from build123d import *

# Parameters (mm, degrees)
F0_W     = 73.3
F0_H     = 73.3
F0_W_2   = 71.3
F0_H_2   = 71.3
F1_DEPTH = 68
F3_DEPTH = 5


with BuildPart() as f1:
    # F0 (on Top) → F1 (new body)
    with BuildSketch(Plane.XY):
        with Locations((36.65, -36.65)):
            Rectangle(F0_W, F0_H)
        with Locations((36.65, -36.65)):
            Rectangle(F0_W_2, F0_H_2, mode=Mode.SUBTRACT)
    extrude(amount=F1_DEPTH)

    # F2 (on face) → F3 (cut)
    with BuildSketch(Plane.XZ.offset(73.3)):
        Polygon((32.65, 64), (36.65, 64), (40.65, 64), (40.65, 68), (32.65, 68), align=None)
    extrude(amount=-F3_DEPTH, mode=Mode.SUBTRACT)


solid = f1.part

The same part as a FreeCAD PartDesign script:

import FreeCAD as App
import Part
import Sketcher
from FreeCAD import Vector
Q = App.Units.Quantity

doc = App.newDocument("Part")
body = doc.addObject("PartDesign::Body", "Body")

sketch1 = body.newObject("Sketcher::SketchObject", "Sketch")
sketch1.AttachmentSupport = (doc.getObject("XY_Plane"), [""])
sketch1.MapMode = "FlatFace"
sketch1.addGeometry([
    Part.LineSegment(Vector(0, 0, 0), Vector(0, -73, 0)),
    Part.LineSegment(Vector(0, -73, 0), Vector(73, -73, 0)),
    Part.LineSegment(Vector(73, -73, 0), Vector(73, 0, 0)),
    Part.LineSegment(Vector(73, 0, 0), Vector(0, 0, 0)),
    Part.LineSegment(Vector(72, -72, 0), Vector(1, -72, 0)),
    Part.LineSegment(Vector(1, -72, 0), Vector(1, -1, 0)),
    Part.LineSegment(Vector(1, -1, 0), Vector(72, -1, 0)),
    Part.LineSegment(Vector(72, -1, 0), Vector(72, -72, 0)),
], False)
sketch1.addConstraint([
    Sketcher.Constraint("Coincident", 0, 2, 1, 1),
    Sketcher.Constraint("Coincident", 1, 2, 2, 1),
    Sketcher.Constraint("Coincident", 2, 2, 3, 1),
    Sketcher.Constraint("Coincident", 3, 2, 0, 1),
    Sketcher.Constraint("Coincident", 4, 2, 5, 1),
    Sketcher.Constraint("Coincident", 5, 2, 6, 1),
    Sketcher.Constraint("Coincident", 6, 2, 7, 1),
    Sketcher.Constraint("Coincident", 7, 2, 4, 1),
    Sketcher.Constraint("Vertical", 0),
    Sketcher.Constraint("Horizontal", 1),
    Sketcher.Constraint("Vertical", 2),
    Sketcher.Constraint("Horizontal", 3),
    Sketcher.Constraint("Horizontal", 4),
    Sketcher.Constraint("Vertical", 5),
    Sketcher.Constraint("Horizontal", 6),
    Sketcher.Constraint("Vertical", 7),
    Sketcher.Constraint("Coincident", 3, 2, -1, 1),
    Sketcher.Constraint("Equal", 3, 0),
    Sketcher.Constraint("Equal", 6, 5),
    Sketcher.Constraint("DistanceX", 1, 1, 1, 2, Q("73.3 mm")),
    Sketcher.Constraint("DistanceX", 4, 2, 4, 1, Q("71.3 mm")),
    Sketcher.Constraint("DistanceX", -1, 1, 4, 2, Q("1 mm")),
    Sketcher.Constraint("DistanceY", 5, 2, -1, 1, Q("1 mm")),
])
pad1 = body.newObject("PartDesign::Pad", "Pad")
pad1.Profile = sketch1
pad1.Length = 68

sketch2 = body.newObject("Sketcher::SketchObject", "Sketch001")
sketch2.AttachmentSupport = (doc.getObject("XZ_Plane"), [""])
sketch2.MapMode = "FlatFace"
sketch2.AttachmentOffset = App.Placement(Vector(0, 0, 73.3), App.Rotation())
sketch2.addGeometry([
    Part.LineSegment(Vector(32.6, 64, 0), Vector(40.6, 64, 0)),
    Part.LineSegment(Vector(40.6, 64, 0), Vector(40.6, 68, 0)),
    Part.LineSegment(Vector(40.6, 68, 0), Vector(32.6, 68, 0)),
    Part.LineSegment(Vector(32.6, 68, 0), Vector(32.6, 64, 0)),
], False)
sketch2.addConstraint([
    Sketcher.Constraint("Coincident", 0, 2, 1, 1),
    Sketcher.Constraint("Coincident", 1, 2, 2, 1),
    Sketcher.Constraint("Coincident", 2, 2, 3, 1),
    Sketcher.Constraint("Coincident", 3, 2, 0, 1),
    Sketcher.Constraint("Horizontal", 0),
    Sketcher.Constraint("Vertical", 1),
    Sketcher.Constraint("Horizontal", 2),
    Sketcher.Constraint("Vertical", 3),
    Sketcher.Constraint("DistanceX", 0, 1, 0, 2, Q("8 mm")),
    Sketcher.Constraint("DistanceY", 1, 1, 1, 2, Q("4 mm")),
    Sketcher.Constraint("DistanceY", -1, 1, 0, 2, Q("64 mm")),
    Sketcher.Constraint("DistanceX", -1, 1, 0, 2, Q("40.65 mm")),
])
pocket1 = body.newObject("PartDesign::Pocket", "Pocket")
pocket1.Profile = sketch2
pocket1.Length = 5

doc.recompute()
